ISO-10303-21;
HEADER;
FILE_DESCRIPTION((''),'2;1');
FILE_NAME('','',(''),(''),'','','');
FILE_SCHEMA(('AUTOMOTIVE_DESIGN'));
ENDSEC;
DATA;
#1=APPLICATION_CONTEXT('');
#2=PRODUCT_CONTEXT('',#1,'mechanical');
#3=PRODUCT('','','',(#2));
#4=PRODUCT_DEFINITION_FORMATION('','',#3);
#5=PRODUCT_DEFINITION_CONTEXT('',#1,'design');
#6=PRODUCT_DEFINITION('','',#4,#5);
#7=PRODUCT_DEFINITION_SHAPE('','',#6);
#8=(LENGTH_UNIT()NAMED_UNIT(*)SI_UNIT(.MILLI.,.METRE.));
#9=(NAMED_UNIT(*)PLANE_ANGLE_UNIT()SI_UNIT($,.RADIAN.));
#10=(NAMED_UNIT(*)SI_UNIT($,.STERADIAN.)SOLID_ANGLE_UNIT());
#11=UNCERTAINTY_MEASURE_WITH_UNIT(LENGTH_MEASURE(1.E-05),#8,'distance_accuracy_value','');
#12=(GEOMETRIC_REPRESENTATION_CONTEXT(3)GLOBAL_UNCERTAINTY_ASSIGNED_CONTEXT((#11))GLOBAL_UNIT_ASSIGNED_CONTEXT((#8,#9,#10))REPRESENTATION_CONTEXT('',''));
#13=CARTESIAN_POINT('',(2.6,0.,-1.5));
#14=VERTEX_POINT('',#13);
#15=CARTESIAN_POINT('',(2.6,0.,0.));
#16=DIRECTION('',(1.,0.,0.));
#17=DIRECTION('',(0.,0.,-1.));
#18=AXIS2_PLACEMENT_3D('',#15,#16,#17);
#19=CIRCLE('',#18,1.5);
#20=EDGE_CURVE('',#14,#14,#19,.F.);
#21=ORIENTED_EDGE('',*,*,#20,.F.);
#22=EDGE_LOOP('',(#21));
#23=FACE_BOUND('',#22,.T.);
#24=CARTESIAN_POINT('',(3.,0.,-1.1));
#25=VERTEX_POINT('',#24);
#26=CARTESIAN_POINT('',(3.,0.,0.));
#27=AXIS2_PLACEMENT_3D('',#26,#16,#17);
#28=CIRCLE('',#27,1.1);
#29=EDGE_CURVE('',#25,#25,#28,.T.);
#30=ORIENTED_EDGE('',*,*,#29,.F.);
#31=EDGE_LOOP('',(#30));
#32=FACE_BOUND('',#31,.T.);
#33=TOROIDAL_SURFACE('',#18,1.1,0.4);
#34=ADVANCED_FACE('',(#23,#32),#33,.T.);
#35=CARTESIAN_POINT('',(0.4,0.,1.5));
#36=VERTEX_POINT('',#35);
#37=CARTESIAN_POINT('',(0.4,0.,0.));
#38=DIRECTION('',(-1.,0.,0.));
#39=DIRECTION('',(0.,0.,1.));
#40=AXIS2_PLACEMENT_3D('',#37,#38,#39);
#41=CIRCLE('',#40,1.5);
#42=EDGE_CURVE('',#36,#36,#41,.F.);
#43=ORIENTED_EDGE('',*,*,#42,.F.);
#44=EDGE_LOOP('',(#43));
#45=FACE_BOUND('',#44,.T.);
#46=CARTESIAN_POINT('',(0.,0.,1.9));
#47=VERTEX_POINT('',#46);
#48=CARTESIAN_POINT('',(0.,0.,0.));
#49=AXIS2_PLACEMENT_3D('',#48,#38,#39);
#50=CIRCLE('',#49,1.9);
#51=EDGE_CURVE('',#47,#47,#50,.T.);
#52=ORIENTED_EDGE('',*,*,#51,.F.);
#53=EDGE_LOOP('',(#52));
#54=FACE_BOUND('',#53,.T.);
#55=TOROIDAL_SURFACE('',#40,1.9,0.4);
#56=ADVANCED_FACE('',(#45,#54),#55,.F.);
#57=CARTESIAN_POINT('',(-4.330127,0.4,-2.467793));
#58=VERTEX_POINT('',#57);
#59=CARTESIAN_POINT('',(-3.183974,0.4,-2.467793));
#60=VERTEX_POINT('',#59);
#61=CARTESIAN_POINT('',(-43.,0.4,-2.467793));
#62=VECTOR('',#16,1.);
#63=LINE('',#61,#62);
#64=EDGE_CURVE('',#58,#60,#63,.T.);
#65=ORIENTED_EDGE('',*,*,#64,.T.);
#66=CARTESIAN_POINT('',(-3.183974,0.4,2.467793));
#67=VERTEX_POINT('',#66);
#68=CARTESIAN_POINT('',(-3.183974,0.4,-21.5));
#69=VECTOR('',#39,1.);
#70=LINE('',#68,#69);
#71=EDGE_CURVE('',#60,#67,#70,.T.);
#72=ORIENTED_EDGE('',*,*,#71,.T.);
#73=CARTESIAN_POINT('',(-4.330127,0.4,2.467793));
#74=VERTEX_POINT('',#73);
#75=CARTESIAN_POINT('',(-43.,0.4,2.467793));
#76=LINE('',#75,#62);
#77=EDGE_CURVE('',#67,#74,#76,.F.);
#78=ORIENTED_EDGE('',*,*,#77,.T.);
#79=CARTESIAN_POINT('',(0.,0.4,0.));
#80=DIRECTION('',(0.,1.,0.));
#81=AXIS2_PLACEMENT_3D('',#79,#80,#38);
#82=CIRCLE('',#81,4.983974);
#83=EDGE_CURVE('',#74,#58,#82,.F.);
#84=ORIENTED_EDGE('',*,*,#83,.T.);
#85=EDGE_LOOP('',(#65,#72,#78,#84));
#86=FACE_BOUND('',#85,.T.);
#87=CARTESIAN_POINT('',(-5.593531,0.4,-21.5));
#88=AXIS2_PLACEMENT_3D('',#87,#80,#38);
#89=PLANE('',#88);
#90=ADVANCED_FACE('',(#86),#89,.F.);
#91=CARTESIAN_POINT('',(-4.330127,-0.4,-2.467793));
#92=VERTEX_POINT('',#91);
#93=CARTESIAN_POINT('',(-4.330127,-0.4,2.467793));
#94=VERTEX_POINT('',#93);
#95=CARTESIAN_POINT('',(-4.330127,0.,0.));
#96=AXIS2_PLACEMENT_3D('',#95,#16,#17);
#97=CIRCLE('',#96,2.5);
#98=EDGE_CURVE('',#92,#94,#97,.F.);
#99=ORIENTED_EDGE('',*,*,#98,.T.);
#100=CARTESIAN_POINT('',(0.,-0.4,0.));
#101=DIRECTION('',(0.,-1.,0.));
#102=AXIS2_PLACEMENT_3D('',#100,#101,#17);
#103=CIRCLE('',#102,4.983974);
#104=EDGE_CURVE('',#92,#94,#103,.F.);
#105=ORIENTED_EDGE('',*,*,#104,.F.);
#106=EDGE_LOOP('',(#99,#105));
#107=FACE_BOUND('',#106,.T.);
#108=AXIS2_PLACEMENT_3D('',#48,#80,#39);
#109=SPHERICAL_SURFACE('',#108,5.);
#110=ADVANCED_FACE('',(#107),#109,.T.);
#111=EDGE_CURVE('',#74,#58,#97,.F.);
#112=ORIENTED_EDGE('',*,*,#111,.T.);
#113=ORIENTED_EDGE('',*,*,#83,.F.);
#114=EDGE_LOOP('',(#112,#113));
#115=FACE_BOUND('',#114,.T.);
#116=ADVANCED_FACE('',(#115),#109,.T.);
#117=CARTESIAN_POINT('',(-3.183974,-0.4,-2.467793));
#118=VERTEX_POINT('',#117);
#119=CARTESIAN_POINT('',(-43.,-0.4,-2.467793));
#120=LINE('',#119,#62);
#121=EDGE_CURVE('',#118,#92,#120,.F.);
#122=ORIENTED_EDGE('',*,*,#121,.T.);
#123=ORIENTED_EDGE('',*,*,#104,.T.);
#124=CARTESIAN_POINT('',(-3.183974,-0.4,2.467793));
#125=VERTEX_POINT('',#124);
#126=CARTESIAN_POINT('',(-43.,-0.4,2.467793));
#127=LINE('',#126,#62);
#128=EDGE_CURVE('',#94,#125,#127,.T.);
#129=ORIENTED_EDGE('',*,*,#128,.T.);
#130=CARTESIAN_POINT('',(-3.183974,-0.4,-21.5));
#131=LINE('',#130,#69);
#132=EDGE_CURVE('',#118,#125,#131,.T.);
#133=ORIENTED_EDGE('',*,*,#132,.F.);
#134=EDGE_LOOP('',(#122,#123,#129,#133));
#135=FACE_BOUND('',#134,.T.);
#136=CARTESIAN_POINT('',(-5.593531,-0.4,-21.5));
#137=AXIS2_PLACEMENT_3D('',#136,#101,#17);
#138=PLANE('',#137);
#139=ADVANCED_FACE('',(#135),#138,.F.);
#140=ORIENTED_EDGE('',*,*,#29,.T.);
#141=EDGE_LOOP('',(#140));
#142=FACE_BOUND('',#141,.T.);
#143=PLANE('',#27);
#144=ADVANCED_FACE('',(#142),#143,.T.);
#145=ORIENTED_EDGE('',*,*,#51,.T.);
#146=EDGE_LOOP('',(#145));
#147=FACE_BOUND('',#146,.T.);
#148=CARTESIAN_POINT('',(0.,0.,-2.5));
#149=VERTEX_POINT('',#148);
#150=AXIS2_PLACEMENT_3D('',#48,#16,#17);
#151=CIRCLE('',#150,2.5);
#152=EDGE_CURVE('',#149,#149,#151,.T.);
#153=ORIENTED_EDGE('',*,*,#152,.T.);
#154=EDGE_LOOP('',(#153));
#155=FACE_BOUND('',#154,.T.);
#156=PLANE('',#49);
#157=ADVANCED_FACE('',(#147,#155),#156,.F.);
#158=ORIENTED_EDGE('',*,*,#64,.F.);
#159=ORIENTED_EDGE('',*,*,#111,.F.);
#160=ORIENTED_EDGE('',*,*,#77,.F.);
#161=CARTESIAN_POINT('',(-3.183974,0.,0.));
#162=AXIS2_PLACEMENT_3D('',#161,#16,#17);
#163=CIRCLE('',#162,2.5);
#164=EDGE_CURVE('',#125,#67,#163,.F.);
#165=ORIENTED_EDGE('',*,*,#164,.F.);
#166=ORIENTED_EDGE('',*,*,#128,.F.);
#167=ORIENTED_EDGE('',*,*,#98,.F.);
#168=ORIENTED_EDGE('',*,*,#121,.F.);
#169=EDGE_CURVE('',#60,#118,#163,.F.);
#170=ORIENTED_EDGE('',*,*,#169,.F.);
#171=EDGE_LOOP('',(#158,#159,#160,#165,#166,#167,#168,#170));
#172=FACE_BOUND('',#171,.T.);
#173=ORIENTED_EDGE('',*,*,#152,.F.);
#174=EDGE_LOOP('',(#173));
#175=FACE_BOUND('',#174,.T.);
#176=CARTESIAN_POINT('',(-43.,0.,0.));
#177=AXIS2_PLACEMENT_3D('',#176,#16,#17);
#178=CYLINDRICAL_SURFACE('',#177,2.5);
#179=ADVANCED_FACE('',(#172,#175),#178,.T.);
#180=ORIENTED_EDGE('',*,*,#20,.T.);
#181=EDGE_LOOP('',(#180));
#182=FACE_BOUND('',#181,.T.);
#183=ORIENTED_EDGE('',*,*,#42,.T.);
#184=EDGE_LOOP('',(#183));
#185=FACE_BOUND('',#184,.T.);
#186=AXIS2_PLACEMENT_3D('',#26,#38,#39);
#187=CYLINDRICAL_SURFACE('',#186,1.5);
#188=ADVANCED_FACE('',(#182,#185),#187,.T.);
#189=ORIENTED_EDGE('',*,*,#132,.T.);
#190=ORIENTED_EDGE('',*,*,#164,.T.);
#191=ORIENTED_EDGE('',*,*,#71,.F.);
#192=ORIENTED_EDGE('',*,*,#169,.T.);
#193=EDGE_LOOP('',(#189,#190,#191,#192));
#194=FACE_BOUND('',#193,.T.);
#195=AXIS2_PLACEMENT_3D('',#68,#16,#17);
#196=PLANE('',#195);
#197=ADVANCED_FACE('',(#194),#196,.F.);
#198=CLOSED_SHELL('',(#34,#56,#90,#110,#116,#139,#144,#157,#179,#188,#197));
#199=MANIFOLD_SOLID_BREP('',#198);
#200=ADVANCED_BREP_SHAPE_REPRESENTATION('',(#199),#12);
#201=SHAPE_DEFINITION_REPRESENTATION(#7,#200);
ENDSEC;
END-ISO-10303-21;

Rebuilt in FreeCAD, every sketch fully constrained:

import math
import FreeCAD as App
import Part
import Sketcher
from FreeCAD import Vector


def edges_at(feature, points):
    """Names of the edges that pass closest to the given points."""
    edges = feature.Shape.Edges
    near = lambda p: min(range(len(edges)), key=lambda i: edges[i].distToShape(Part.Vertex(*p))[0])
    return sorted({f"Edge{near(p) + 1}" for p in points})

doc = App.newDocument("Part")
body = doc.addObject("PartDesign::Body", "Body")

sketch1 = body.newObject("Sketcher::SketchObject", "Sketch")
sketch1.AttachmentSupport = (doc.getObject("YZ_Plane"), [""])
sketch1.MapMode = "FlatFace"
sketch1.addGeometry(Part.LineSegment(Vector(-5, 0, 0), Vector(5, 0, 0)), False)
sketch1.addGeometry(Part.ArcOfCircle(Part.Circle(Vector(0, 0, 0), Vector(0, 0, 1), 5), math.radians(0), math.radians(180)), False)
sketch1.addConstraint(Sketcher.Constraint("Coincident", 0, 1, 1, 2))
sketch1.addConstraint(Sketcher.Constraint("Coincident", 1, 1, 0, 2))
sketch1.addConstraint(Sketcher.Constraint("Horizontal", 0))
sketch1.addConstraint(Sketcher.Constraint("Coincident", 1, 3, -1, 1))
sketch1.addConstraint(Sketcher.Constraint("PointOnObject", 0, 1, -1))
sketch1.addConstraint(Sketcher.Constraint("Radius", 1, 5.0))
revolution = body.newObject("PartDesign::Revolution", "Revolution")
revolution.Profile = sketch1
revolution.ReferenceAxis = (sketch1, ["H_Axis"])
revolution.Angle = 180
revolution.Reversed = True

sketch2 = body.newObject("Sketcher::SketchObject", "Sketch001")
sketch2.AttachmentSupport = (doc.getObject("YZ_Plane"), [""])
sketch2.MapMode = "FlatFace"
sketch2.addGeometry(Part.Circle(Vector(0, 0, 0), Vector(0, 0, 1), 1.5), False)
sketch2.addConstraint(Sketcher.Constraint("Coincident", 0, 3, -1, 1))
sketch2.addConstraint(Sketcher.Constraint("Diameter", 0, 3.0))
pad1 = body.newObject("PartDesign::Pad", "Pad")
pad1.Profile = sketch2
pad1.Length = 3
doc.recompute()

fillet = body.newObject("PartDesign::Fillet", "Fillet")
fillet.Base = (pad1, edges_at(pad1, [(0, 0, -1.5), (3, 0, -1.5)]))
fillet.Radius = 0.4

sketch3 = body.newObject("Sketcher::SketchObject", "Sketch002")
sketch3.AttachmentSupport = (doc.getObject("YZ_Plane"), [""])
sketch3.MapMode = "FlatFace"
sketch3.addGeometry(Part.LineSegment(Vector(7.625, 7.625, 0), Vector(-7.625, 7.625, 0)), False)
sketch3.addGeometry(Part.LineSegment(Vector(-7.625, 7.625, 0), Vector(-7.625, -7.625, 0)), False)
sketch3.addGeometry(Part.LineSegment(Vector(-7.625, -7.625, 0), Vector(7.625, -7.625, 0)), False)
sketch3.addGeometry(Part.LineSegment(Vector(7.625, -7.625, 0), Vector(7.625, 7.625, 0)), False)
sketch3.addGeometry(Part.Circle(Vector(0, 0, 0), Vector(0, 0, 1), 2.5), False)
sketch3.addConstraint(Sketcher.Constraint("Coincident", 0, 2, 1, 1))
sketch3.addConstraint(Sketcher.Constraint("Coincident", 1, 2, 2, 1))
sketch3.addConstraint(Sketcher.Constraint("Coincident", 2, 2, 3, 1))
sketch3.addConstraint(Sketcher.Constraint("Coincident", 3, 2, 0, 1))
sketch3.addConstraint(Sketcher.Constraint("Horizontal", 0))
sketch3.addConstraint(Sketcher.Constraint("Vertical", 1))
sketch3.addConstraint(Sketcher.Constraint("Horizontal", 2))
sketch3.addConstraint(Sketcher.Constraint("Vertical", 3))
sketch3.addConstraint(Sketcher.Constraint("Coincident", 4, 3, -1, 1))
sketch3.addConstraint(Sketcher.Constraint("Symmetric", 0, 2, 2, 2, -1, 1))
sketch3.addConstraint(Sketcher.Constraint("Equal", 2, 1))
sketch3.addConstraint(Sketcher.Constraint("Diameter", 4, 5.0))
sketch3.addConstraint(Sketcher.Constraint("DistanceX", 0, 2, 0, 1, 15.25))
pocket1 = body.newObject("PartDesign::Pocket", "Pocket")
pocket1.Profile = sketch3
pocket1.Length = 43

sketch4 = body.newObject("Sketcher::SketchObject", "Sketch003")
sketch4.AttachmentSupport = (doc.getObject("XY_Plane"), [""])
sketch4.MapMode = "FlatFace"
sketch4.addGeometry(Part.LineSegment(Vector(-5.593531, 0.4, 0), Vector(-5.593531, -0.4, 0)), False)
sketch4.addGeometry(Part.LineSegment(Vector(-5.593531, -0.4, 0), Vector(-3.183974, -0.4, 0)), False)
sketch4.addGeometry(Part.LineSegment(Vector(-3.183974, -0.4, 0), Vector(-3.183974, 0.4, 0)), False)
sketch4.addGeometry(Part.LineSegment(Vector(-3.183974, 0.4, 0), Vector(-5.593531, 0.4, 0)), False)
sketch4.addConstraint(Sketcher.Constraint("Coincident", 0, 2, 1, 1))
sketch4.addConstraint(Sketcher.Constraint("Coincident", 1, 2, 2, 1))
sketch4.addConstraint(Sketcher.Constraint("Coincident", 2, 2, 3, 1))
sketch4.addConstraint(Sketcher.Constraint("Coincident", 3, 2, 0, 1))
sketch4.addConstraint(Sketcher.Constraint("Vertical", 0))
sketch4.addConstraint(Sketcher.Constraint("Horizontal", 1))
sketch4.addConstraint(Sketcher.Constraint("Vertical", 2))
sketch4.addConstraint(Sketcher.Constraint("Horizontal", 3))
sketch4.addConstraint(Sketcher.Constraint("DistanceY", 0, 2, 0, 1, 0.8))
sketch4.addConstraint(Sketcher.Constraint("DistanceY", 0, 2, -1, 1, 0.4))
sketch4.addConstraint(Sketcher.Constraint("DistanceX", 1, 1, 1, 2, 2.409556))
sketch4.addConstraint(Sketcher.Constraint("DistanceX", 0, 2, -1, 1, 5.593531))
pocket2 = body.newObject("PartDesign::Pocket", "Pocket001")
pocket2.Profile = sketch4
pocket2.Length = 43
pocket2.Midplane = True

doc.recompute()
